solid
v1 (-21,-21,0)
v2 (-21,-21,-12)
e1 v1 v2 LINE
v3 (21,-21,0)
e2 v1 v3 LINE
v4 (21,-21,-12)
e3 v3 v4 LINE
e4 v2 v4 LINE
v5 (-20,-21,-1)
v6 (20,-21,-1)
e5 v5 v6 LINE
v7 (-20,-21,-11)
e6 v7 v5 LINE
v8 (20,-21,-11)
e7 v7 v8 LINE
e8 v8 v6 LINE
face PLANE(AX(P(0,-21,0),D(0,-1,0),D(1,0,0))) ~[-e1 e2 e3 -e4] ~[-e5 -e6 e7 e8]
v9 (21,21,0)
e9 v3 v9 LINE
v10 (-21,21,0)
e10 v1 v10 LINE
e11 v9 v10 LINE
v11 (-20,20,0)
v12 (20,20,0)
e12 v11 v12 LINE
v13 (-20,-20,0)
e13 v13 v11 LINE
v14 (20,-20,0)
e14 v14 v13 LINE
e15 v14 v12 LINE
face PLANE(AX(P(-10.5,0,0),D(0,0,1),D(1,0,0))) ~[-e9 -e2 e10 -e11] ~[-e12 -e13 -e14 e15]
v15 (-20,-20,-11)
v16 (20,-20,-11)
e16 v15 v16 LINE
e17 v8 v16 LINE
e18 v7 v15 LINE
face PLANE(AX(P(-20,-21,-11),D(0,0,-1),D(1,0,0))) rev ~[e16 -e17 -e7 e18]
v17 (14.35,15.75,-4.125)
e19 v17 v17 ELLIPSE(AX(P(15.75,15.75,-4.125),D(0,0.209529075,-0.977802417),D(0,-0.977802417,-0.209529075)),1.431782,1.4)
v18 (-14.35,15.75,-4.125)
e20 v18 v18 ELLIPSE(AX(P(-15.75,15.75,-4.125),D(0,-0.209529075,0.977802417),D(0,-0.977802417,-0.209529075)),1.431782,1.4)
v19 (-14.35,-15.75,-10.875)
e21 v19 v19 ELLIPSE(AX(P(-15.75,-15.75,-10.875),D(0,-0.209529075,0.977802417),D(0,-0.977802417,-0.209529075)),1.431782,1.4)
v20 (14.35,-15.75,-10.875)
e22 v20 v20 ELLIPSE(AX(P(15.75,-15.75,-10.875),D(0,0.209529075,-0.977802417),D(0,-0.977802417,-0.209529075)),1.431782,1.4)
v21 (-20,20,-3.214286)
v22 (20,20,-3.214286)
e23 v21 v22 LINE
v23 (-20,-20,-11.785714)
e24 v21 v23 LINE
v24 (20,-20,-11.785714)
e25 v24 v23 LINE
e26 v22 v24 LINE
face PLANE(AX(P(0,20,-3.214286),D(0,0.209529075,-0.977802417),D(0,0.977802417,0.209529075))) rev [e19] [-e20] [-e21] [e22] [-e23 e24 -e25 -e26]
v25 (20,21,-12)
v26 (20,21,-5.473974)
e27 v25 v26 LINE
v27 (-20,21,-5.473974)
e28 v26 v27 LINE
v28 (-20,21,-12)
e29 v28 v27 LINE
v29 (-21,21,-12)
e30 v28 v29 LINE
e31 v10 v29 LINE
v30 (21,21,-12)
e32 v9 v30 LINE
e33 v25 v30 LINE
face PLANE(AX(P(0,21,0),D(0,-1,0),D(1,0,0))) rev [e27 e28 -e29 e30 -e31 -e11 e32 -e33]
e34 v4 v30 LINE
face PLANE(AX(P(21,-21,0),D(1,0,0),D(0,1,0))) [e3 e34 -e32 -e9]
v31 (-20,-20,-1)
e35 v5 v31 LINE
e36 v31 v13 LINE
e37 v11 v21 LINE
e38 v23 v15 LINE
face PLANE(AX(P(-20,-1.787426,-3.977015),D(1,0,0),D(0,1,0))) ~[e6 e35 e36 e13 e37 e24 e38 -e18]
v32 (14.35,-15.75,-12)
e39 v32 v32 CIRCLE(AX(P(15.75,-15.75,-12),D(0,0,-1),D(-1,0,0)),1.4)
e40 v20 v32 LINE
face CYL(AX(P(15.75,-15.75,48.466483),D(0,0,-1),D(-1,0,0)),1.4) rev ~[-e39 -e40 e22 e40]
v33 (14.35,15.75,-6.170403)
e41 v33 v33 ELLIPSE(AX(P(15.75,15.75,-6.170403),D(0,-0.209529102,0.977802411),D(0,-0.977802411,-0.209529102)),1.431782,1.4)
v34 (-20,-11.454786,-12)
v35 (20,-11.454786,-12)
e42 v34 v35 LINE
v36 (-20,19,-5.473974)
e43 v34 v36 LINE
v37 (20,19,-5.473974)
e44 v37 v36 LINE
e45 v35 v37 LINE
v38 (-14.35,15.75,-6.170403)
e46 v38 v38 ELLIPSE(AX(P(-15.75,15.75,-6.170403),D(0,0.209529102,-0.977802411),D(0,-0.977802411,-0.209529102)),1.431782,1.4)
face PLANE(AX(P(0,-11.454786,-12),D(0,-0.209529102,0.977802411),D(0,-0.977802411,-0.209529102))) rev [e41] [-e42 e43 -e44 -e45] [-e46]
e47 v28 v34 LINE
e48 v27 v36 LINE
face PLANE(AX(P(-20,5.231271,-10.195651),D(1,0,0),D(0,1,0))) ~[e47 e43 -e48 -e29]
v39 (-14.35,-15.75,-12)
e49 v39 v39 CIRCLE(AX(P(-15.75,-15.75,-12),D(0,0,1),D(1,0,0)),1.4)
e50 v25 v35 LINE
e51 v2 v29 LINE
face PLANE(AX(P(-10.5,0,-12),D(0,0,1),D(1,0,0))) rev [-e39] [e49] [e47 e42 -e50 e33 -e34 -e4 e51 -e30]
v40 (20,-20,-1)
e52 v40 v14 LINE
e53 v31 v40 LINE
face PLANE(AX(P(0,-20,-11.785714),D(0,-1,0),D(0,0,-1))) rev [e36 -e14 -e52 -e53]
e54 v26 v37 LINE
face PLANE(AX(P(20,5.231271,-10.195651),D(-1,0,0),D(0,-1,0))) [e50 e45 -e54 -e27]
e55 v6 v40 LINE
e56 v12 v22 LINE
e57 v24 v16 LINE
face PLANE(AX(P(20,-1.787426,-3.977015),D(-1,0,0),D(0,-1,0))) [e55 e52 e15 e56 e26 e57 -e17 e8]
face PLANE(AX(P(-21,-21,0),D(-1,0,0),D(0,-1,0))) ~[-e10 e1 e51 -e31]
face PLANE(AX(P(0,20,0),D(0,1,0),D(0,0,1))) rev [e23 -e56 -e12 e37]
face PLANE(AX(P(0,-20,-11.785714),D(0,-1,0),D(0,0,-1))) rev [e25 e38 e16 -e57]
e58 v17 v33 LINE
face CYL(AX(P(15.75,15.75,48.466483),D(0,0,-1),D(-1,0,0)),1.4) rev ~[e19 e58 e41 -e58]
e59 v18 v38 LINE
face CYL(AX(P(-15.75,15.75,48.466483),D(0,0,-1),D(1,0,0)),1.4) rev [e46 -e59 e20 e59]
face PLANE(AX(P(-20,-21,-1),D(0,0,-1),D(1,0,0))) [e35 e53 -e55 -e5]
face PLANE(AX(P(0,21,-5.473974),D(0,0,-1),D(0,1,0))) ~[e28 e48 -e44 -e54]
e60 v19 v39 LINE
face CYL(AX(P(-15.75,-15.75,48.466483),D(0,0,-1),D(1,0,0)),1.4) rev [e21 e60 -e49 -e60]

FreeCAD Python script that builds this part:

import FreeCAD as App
import Part
import Sketcher

V = App.Vector


def add_polygon(sketch, points):
    """Adds a closed chain of lines whose ends are joined by coincident constraints."""
    first, n = sketch.GeometryCount, len(points)
    for a, b in zip(points, points[1:] + points[:1]):
        sketch.addGeometry(Part.LineSegment(App.Vector(*a, 0), App.Vector(*b, 0)), False)
    for i in range(n):
        sketch.addConstraint(Sketcher.Constraint("Coincident", first + i, 2, first + (i + 1) % n, 1))

doc = App.newDocument("Part")
body = doc.addObject("PartDesign::Body", "Body")

# Sketch on XY plane
sketch1 = doc.addObject("Sketcher::SketchObject", "Sketch")
body.addObject(sketch1)
sketch1.AttachmentSupport = (doc.XY_Plane, [""])
sketch1.MapMode = "FlatFace"
add_polygon(sketch1, [(0, 21), (0, -21), (21, -21), (21, 21)])  # lines 0-3
sketch1.addConstraint(Sketcher.Constraint("Vertical", 0))
sketch1.addConstraint(Sketcher.Constraint("Horizontal", 1))
sketch1.addConstraint(Sketcher.Constraint("Vertical", 2))
sketch1.addConstraint(Sketcher.Constraint("Horizontal", 3))
sketch1.addConstraint(Sketcher.Constraint("Symmetric", 0, 2, 3, 2, -1, 1))
sketch1.addConstraint(Sketcher.Constraint("DistanceX", 1, 1, 1, 2, 21.0))
sketch1.addConstraint(Sketcher.Constraint("DistanceY", 0, 2, 0, 1, 42.0))
pad1 = doc.addObject("PartDesign::Pad", "Pad")
body.addObject(pad1)
pad1.Profile = sketch1
pad1.Length = 12
pad1.Reversed = True

# Sketch on XY plane
sketch2 = doc.addObject("Sketcher::SketchObject", "Sketch001")
body.addObject(sketch2)
sketch2.AttachmentSupport = (doc.XY_Plane, [""])
sketch2.MapMode = "FlatFace"
sketch2.addGeometry(Part.Circle(V(15.8, 15.8, 0), V(0, 0, 1), 1.4), False)
sketch2.addGeometry(Part.Circle(V(15.8, -15.8, 0), V(0, 0, 1), 1.4), False)
sketch2.addConstraint(Sketcher.Constraint("Equal", 0, 1))
sketch2.addConstraint(Sketcher.Constraint("Symmetric", 0, 3, 1, 3, -1))
sketch2.addConstraint(Sketcher.Constraint("Diameter", 0, 2.8))
sketch2.addConstraint(Sketcher.Constraint("DistanceY", 1, 3, 0, 3, 31.5))
sketch2.addConstraint(Sketcher.Constraint("DistanceX", -1, 1, 0, 3, 15.75))
doc.recompute()
hole = doc.addObject("PartDesign::Hole", "Hole")
body.addObject(hole)
hole.Profile = sketch2
hole.ThreadType = "None"
hole.Diameter = 2.8
hole.DepthType = "ThroughAll"

# Sketch on YZ plane
sketch3 = doc.addObject("Sketcher::SketchObject", "Sketch002")
body.addObject(sketch3)
sketch3.AttachmentSupport = (doc.YZ_Plane, [""])
sketch3.MapMode = "FlatFace"
add_polygon(sketch3, [(20, 0), (20, -3.2), (-20, -11.8), (-20, 0)])  # lines 0-3
add_polygon(sketch3, [(-11.5, -12), (19, -5.5), (21, -5.5), (21, -12)])  # lines 4-7
sketch3.addConstraint(Sketcher.Constraint("Vertical", 0))
sketch3.addConstraint(Sketcher.Constraint("Vertical", 2))
sketch3.addConstraint(Sketcher.Constraint("Horizontal", 3))
sketch3.addConstraint(Sketcher.Constraint("Horizontal", 5))
sketch3.addConstraint(Sketcher.Constraint("Vertical", 6))
sketch3.addConstraint(Sketcher.Constraint("Horizontal", 7))
sketch3.addConstraint(Sketcher.Constraint("Symmetric", 2, 2, 3, 2, -1, 1))
sketch3.addConstraint(Sketcher.Constraint("Parallel", 1, 4))
sketch3.addConstraint(Sketcher.Constraint("DistanceX", 3, 1, 3, 2, 40.0))
sketch3.addConstraint(Sketcher.Constraint("DistanceX", 5, 1, 5, 2, 2.0))
sketch3.addConstraint(Sketcher.Constraint("DistanceX", -1, 1, 4, 2, 19.0))
sketch3.addConstraint(Sketcher.Constraint("DistanceY", 6, 2, -1, 1, 12.0))
sketch3.addConstraint(Sketcher.Constraint("Distance", 1, 40.90806))
sketch3.addConstraint(Sketcher.Constraint("DistanceX", 7, 2, 7, 1, 32.454786))
sketch3.addConstraint(Sketcher.Constraint("DistanceY", 0, 2, 0, 1, 3.214286))
pocket1 = doc.addObject("PartDesign::Pocket", "Pocket")
body.addObject(pocket1)
pocket1.Profile = sketch3
pocket1.Length = 20
pocket1.Reversed = True
body2 = doc.addObject("PartDesign::Body", "Body001")
doc.recompute()

body2.BaseFeature = body
doc.recompute()

mirroring = doc.addObject("Part::Mirroring", "Mirroring")
mirroring.Source = body
mirroring.Base = V(0, 0.027427, -7.493387)
mirroring.Normal = V(-1, 0, 0)
body3 = doc.addObject("PartDesign::Body", "Body002")
body3.BaseFeature = mirroring
boolean = doc.addObject("PartDesign::Boolean", "Boolean")
body2.addObject(boolean)
boolean.Type = "Fuse"
boolean.addObjects([body3])
doc.recompute()

# Sketch on XZ plane
sketch4 = doc.addObject("Sketcher::SketchObject", "Sketch003")
body2.addObject(sketch4)
sketch4.AttachmentSupport = (doc.getObject("XZ_Plane001"), [""])
sketch4.MapMode = "FlatFace"
sketch4.AttachmentOffset = App.Placement(V(0, 0, 21), App.Rotation())
add_polygon(sketch4, [(-20, -1), (-20, -11), (20, -11), (20, -1)])  # lines 0-3
sketch4.addConstraint(Sketcher.Constraint("Vertical", 0))
sketch4.addConstraint(Sketcher.Constraint("Horizontal", 1))
sketch4.addConstraint(Sketcher.Constraint("Vertical", 2))
sketch4.addConstraint(Sketcher.Constraint("Horizontal", 3))
sketch4.addConstraint(Sketcher.Constraint("DistanceX", 1, 1, 1, 2, 40.0))
sketch4.addConstraint(Sketcher.Constraint("DistanceY", 0, 2, 0, 1, 10.0))
sketch4.addConstraint(Sketcher.Constraint("DistanceX", 0, 2, -1, 1, 20.0))
sketch4.addConstraint(Sketcher.Constraint("DistanceY", 0, 2, -1, 1, 11.0))
pocket2 = doc.addObject("PartDesign::Pocket", "Pocket001")
body2.addObject(pocket2)
pocket2.Profile = sketch4
pocket2.Length = 1
mirroring.Visibility = False

doc.recompute()
